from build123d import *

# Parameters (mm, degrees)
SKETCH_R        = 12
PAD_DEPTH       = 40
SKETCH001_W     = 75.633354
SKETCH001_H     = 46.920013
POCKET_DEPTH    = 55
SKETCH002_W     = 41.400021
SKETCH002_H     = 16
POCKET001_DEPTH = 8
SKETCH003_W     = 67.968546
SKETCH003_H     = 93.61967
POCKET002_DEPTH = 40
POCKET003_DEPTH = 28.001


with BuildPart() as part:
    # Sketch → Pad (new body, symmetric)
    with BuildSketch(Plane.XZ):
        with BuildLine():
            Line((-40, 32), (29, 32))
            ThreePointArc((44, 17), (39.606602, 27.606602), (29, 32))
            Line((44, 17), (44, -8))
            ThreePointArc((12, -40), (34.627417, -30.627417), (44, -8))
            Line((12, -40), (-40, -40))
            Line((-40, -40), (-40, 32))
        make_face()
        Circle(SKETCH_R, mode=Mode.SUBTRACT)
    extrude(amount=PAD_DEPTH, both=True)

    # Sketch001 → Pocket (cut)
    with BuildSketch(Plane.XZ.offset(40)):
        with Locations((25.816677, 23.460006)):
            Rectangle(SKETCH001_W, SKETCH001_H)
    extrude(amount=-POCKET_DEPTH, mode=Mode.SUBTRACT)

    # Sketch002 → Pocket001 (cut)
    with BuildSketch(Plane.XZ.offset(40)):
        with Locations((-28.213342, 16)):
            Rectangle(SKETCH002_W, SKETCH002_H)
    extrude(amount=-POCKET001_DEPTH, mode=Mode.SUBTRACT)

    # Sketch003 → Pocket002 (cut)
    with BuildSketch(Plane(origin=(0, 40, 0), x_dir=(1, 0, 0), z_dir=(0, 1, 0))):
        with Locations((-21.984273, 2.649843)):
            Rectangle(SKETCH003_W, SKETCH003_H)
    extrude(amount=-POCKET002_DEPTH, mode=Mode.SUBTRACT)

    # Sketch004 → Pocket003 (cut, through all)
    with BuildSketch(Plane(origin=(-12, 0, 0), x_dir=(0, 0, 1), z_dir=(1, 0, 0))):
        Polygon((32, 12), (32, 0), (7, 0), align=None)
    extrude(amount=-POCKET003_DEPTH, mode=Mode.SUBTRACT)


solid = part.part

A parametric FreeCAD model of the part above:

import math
import FreeCAD as App
import Part
import Sketcher

doc = App.newDocument("Part")
body = doc.addObject("PartDesign::Body", "Body")

# Sketch on XZ plane
sketch1 = body.newObject("Sketcher::SketchObject", "Sketch")
sketch1.AttachmentSupport = (doc.getObject("XZ_Plane"), [""])
sketch1.MapMode = "FlatFace"
sketch1.addGeometry(Part.LineSegment(App.Vector(29, 32, 0), App.Vector(-40, 32, 0)), False)
sketch1.addGeometry(Part.LineSegment(App.Vector(-40, 32, 0), App.Vector(-40, -40, 0)), False)
sketch1.addGeometry(Part.LineSegment(App.Vector(-40, -40, 0), App.Vector(12, -40, 0)), False)
sketch1.addGeometry(Part.ArcOfCircle(Part.Circle(App.Vector(12, -8, 0), App.Vector(0, 0, 1), 32), math.radians(-90), math.radians(0)), False)
sketch1.addGeometry(Part.LineSegment(App.Vector(44, -8, 0), App.Vector(44, 17, 0)), False)
sketch1.addGeometry(Part.ArcOfCircle(Part.Circle(App.Vector(29, 17, 0), App.Vector(0, 0, 1), 15), math.radians(0), math.radians(90)), False)
sketch1.addGeometry(Part.Circle(App.Vector(0, 0, 0), App.Vector(0, 0, 1), 12), False)
sketch1.addConstraint(Sketcher.Constraint("Coincident", 0, 2, 1, 1))
sketch1.addConstraint(Sketcher.Constraint("Coincident", 1, 2, 2, 1))
sketch1.addConstraint(Sketcher.Constraint("Tangent", 2, 2, 3, 1))
sketch1.addConstraint(Sketcher.Constraint("Tangent", 3, 2, 4, 1))
sketch1.addConstraint(Sketcher.Constraint("Tangent", 4, 2, 5, 1))
sketch1.addConstraint(Sketcher.Constraint("Tangent", 5, 2, 0, 1))
sketch1.addConstraint(Sketcher.Constraint("Horizontal", 0))
sketch1.addConstraint(Sketcher.Constraint("Vertical", 1))
sketch1.addConstraint(Sketcher.Constraint("Horizontal", 2))
sketch1.addConstraint(Sketcher.Constraint("Vertical", 4))
sketch1.addConstraint(Sketcher.Constraint("Coincident", 6, 3, -1, 1))
sketch1.addConstraint(Sketcher.Constraint("Diameter", 6, 24.0))
sketch1.addConstraint(Sketcher.Constraint("Radius", 3, 32.0))
sketch1.addConstraint(Sketcher.Constraint("Radius", 5, 14.999999))
sketch1.addConstraint(Sketcher.Constraint("DistanceX", 0, 2, 0, 1, 69.0))
sketch1.addConstraint(Sketcher.Constraint("DistanceY", 1, 2, 1, 1, 72.0))
sketch1.addConstraint(Sketcher.Constraint("DistanceX", -1, 1, 3, 3, 12.0))
sketch1.addConstraint(Sketcher.Constraint("DistanceY", 3, 3, -1, 1, 8.0))
pad1 = body.newObject("PartDesign::Pad", "Pad")
pad1.Profile = sketch1
pad1.Length = 80
pad1.Midplane = True

# Sketch on XZ plane
sketch2 = body.newObject("Sketcher::SketchObject", "Sketch001")
sketch2.AttachmentSupport = (doc.getObject("XZ_Plane"), [""])
sketch2.MapMode = "FlatFace"
sketch2.AttachmentOffset = App.Placement(App.Vector(0, 0, 40), App.Rotation())
sketch2.addGeometry(Part.LineSegment(App.Vector(-12, 47, 0), App.Vector(-12, 0, 0)), False)
sketch2.addGeometry(Part.LineSegment(App.Vector(-12, 0, 0), App.Vector(64, 0, 0)), False)
sketch2.addGeometry(Part.LineSegment(App.Vector(64, 0, 0), App.Vector(64, 47, 0)), False)
sketch2.addGeometry(Part.LineSegment(App.Vector(64, 47, 0), App.Vector(-12, 47, 0)), False)
sketch2.addConstraint(Sketcher.Constraint("Coincident", 0, 2, 1, 1))
sketch2.addConstraint(Sketcher.Constraint("Coincident", 1, 2, 2, 1))
sketch2.addConstraint(Sketcher.Constraint("Coincident", 2, 2, 3, 1))
sketch2.addConstraint(Sketcher.Constraint("Coincident", 3, 2, 0, 1))
sketch2.addConstraint(Sketcher.Constraint("Vertical", 0))
sketch2.addConstraint(Sketcher.Constraint("Horizontal", 1))
sketch2.addConstraint(Sketcher.Constraint("Vertical", 2))
sketch2.addConstraint(Sketcher.Constraint("Horizontal", 3))
sketch2.addConstraint(Sketcher.Constraint("PointOnObject", 0, 2, -1))
sketch2.addConstraint(Sketcher.Constraint("DistanceX", 0, 2, -1, 1, 12.0))
sketch2.addConstraint(Sketcher.Constraint("DistanceX", 1, 1, 1, 2, 75.633354))
sketch2.addConstraint(Sketcher.Constraint("DistanceY", 0, 2, 0, 1, 46.920013))
pocket1 = body.newObject("PartDesign::Pocket", "Pocket")
pocket1.Profile = sketch2
pocket1.Length = 55

# Sketch on XZ plane
sketch3 = body.newObject("Sketcher::SketchObject", "Sketch002")
sketch3.AttachmentSupport = (doc.getObject("XZ_Plane"), [""])
sketch3.MapMode = "FlatFace"
sketch3.AttachmentOffset = App.Placement(App.Vector(0, 0, 40), App.Rotation())
sketch3.addGeometry(Part.LineSegment(App.Vector(-49, 24, 0), App.Vector(-49, 8, 0)), False)
sketch3.addGeometry(Part.LineSegment(App.Vector(-49, 8, 0), App.Vector(-8, 8, 0)), False)
sketch3.addGeometry(Part.LineSegment(App.Vector(-8, 8, 0), App.Vector(-8, 24, 0)), False)
sketch3.addGeometry(Part.LineSegment(App.Vector(-8, 24, 0), App.Vector(-49, 24, 0)), False)
sketch3.addConstraint(Sketcher.Constraint("Coincident", 0, 2, 1, 1))
sketch3.addConstraint(Sketcher.Constraint("Coincident", 1, 2, 2, 1))
sketch3.addConstraint(Sketcher.Constraint("Coincident", 2, 2, 3, 1))
sketch3.addConstraint(Sketcher.Constraint("Coincident", 3, 2, 0, 1))
sketch3.addConstraint(Sketcher.Constraint("Vertical", 0))
sketch3.addConstraint(Sketcher.Constraint("Horizontal", 1))
sketch3.addConstraint(Sketcher.Constraint("Vertical", 2))
sketch3.addConstraint(Sketcher.Constraint("Horizontal", 3))
sketch3.addConstraint(Sketcher.Constraint("DistanceY", 0, 2, 0, 1, 16.0))
sketch3.addConstraint(Sketcher.Constraint("DistanceY", -1, 1, 0, 2, 8.0))
sketch3.addConstraint(Sketcher.Constraint("DistanceX", 1, 1, 1, 2, 41.400021))
sketch3.addConstraint(Sketcher.Constraint("DistanceX", 1, 2, -1, 1, 7.513331))
pocket2 = body.newObject("PartDesign::Pocket", "Pocket001")
pocket2.Profile = sketch3
pocket2.Length = 8

# Sketch on XZ plane
sketch4 = body.newObject("Sketcher::SketchObject", "Sketch003")
sketch4.AttachmentSupport = (doc.getObject("XZ_Plane"), [""])
sketch4.MapMode = "FlatFace"
sketch4.AttachmentOffset = App.Placement(App.Vector(0, 0, -40), App.Rotation())
sketch4.addGeometry(Part.LineSegment(App.Vector(-56, -49, 0), App.Vector(-56, 44, 0)), False)
sketch4.addGeometry(Part.LineSegment(App.Vector(-56, 44, 0), App.Vector(12, 44, 0)), False)
sketch4.addGeometry(Part.LineSegment(App.Vector(12, 44, 0), App.Vector(12, -49, 0)), False)
sketch4.addGeometry(Part.LineSegment(App.Vector(12, -49, 0), App.Vector(-56, -49, 0)), False)
sketch4.addConstraint(Sketcher.Constraint("Coincident", 0, 2, 1, 1))
sketch4.addConstraint(Sketcher.Constraint("Coincident", 1, 2, 2, 1))
sketch4.addConstraint(Sketcher.Constraint("Coincident", 2, 2, 3, 1))
sketch4.addConstraint(Sketcher.Constraint("Coincident", 3, 2, 0, 1))
sketch4.addConstraint(Sketcher.Constraint("Vertical", 0))
sketch4.addConstraint(Sketcher.Constraint("Horizontal", 1))
sketch4.addConstraint(Sketcher.Constraint("Vertical", 2))
sketch4.addConstraint(Sketcher.Constraint("Horizontal", 3))
sketch4.addConstraint(Sketcher.Constraint("DistanceX", -1, 1, 1, 2, 12.0))
sketch4.addConstraint(Sketcher.Constraint("DistanceY", 0, 1, 0, 2, 93.61967))
sketch4.addConstraint(Sketcher.Constraint("DistanceX", 1, 1, 1, 2, 67.968546))
sketch4.addConstraint(Sketcher.Constraint("DistanceY", -1, 1, 0, 2, 44.159992))
pocket3 = body.newObject("PartDesign::Pocket", "Pocket002")
pocket3.Profile = sketch4
pocket3.Length = 40
pocket3.Reversed = True

# Sketch on YZ plane
sketch5 = body.newObject("Sketcher::SketchObject", "Sketch004")
sketch5.AttachmentSupport = (doc.getObject("YZ_Plane"), [""])
sketch5.MapMode = "FlatFace"
sketch5.AttachmentOffset = App.Placement(App.Vector(0, 0, -12), App.Rotation())
sketch5.addGeometry(Part.LineSegment(App.Vector(0, 32, 0), App.Vector(-12, 32, 0)), False)
sketch5.addGeometry(Part.LineSegment(App.Vector(-12, 32, 0), App.Vector(0, 7, 0)), False)
sketch5.addGeometry(Part.LineSegment(App.Vector(0, 7, 0), App.Vector(0, 32, 0)), False)
sketch5.addConstraint(Sketcher.Constraint("Coincident", 0, 2, 1, 1))
sketch5.addConstraint(Sketcher.Constraint("Coincident", 1, 2, 2, 1))
sketch5.addConstraint(Sketcher.Constraint("Coincident", 2, 2, 0, 1))
sketch5.addConstraint(Sketcher.Constraint("Horizontal", 0))
sketch5.addConstraint(Sketcher.Constraint("Vertical", 2))
sketch5.addConstraint(Sketcher.Constraint("PointOnObject", 1, 2, -2))
sketch5.addConstraint(Sketcher.Constraint("DistanceX", 0, 2, 0, 1, 12.0))
sketch5.addConstraint(Sketcher.Constraint("DistanceY", 2, 1, 2, 2, 25.0))
sketch5.addConstraint(Sketcher.Constraint("DistanceY", -1, 1, 0, 2, 32.0))
pocket4 = body.newObject("PartDesign::Pocket", "Pocket003")
pocket4.Profile = sketch5
pocket4.Type = "ThroughAll"

doc.recompute()
